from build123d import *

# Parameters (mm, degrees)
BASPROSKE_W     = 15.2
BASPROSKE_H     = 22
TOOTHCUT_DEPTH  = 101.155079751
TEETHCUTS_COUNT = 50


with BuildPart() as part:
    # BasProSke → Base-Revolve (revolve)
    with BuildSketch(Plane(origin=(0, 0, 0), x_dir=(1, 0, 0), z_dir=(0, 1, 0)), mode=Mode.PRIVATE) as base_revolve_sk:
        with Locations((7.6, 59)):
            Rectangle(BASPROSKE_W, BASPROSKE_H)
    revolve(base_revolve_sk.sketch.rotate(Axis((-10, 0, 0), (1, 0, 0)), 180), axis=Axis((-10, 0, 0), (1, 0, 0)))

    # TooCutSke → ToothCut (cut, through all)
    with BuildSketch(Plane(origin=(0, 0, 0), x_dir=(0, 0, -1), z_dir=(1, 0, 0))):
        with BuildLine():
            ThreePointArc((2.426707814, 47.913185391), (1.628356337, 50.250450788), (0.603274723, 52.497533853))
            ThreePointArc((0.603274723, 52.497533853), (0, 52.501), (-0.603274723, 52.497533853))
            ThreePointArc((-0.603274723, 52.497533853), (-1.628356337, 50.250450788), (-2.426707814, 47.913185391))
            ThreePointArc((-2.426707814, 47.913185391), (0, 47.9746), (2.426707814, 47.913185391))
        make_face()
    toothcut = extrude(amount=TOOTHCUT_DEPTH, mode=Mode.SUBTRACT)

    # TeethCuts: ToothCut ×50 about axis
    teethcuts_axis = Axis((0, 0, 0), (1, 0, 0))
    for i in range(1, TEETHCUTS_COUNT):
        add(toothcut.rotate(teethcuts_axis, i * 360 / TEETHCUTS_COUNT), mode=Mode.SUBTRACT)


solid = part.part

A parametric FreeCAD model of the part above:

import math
import FreeCAD as App
import Part
import Sketcher

doc = App.newDocument("Part")
body = doc.addObject("PartDesign::Body", "Body")

sketch1 = doc.addObject("Sketcher::SketchObject", "Sketch")
body.addObject(sketch1)
sketch1.AttachmentSupport = (doc.XZ_Plane, [""])
sketch1.MapMode = "FlatFace"
sketch1.addGeometry(Part.LineSegment(App.Vector(0, -70, 0), App.Vector(0, -48, 0)), False)
sketch1.addGeometry(Part.LineSegment(App.Vector(0, -48, 0), App.Vector(15.2, -48, 0)), False)
sketch1.addGeometry(Part.LineSegment(App.Vector(15.2, -48, 0), App.Vector(15.2, -70, 0)), False)
sketch1.addGeometry(Part.LineSegment(App.Vector(15.2, -70, 0), App.Vector(0, -70, 0)), False)
sketch1.addConstraint(Sketcher.Constraint("Coincident", 0, 2, 1, 1))
sketch1.addConstraint(Sketcher.Constraint("Coincident", 1, 2, 2, 1))
sketch1.addConstraint(Sketcher.Constraint("Coincident", 2, 2, 3, 1))
sketch1.addConstraint(Sketcher.Constraint("Coincident", 3, 2, 0, 1))
sketch1.addConstraint(Sketcher.Constraint("Vertical", 0))
sketch1.addConstraint(Sketcher.Constraint("Horizontal", 1))
sketch1.addConstraint(Sketcher.Constraint("Vertical", 2))
sketch1.addConstraint(Sketcher.Constraint("Horizontal", 3))
sketch1.addConstraint(Sketcher.Constraint("PointOnObject", 0, 2, -2))
sketch1.addConstraint(Sketcher.Constraint("DistanceY", 0, 1, 0, 2, 22.0))
sketch1.addConstraint(Sketcher.Constraint("DistanceX", 1, 1, 1, 2, 15.2))
sketch1.addConstraint(Sketcher.Constraint("DistanceY", 0, 2, -1, 1, 48.0))
revolution = doc.addObject("PartDesign::Revolution", "Revolution")
body.addObject(revolution)
revolution.Profile = sketch1
revolution.ReferenceAxis = (sketch1, ["H_Axis"])
revolution.Angle = 360

sketch2 = doc.addObject("Sketcher::SketchObject", "Sketch001")
body.addObject(sketch2)
sketch2.AttachmentSupport = (doc.YZ_Plane, [""])
sketch2.MapMode = "FlatFace"
sketch2.addGeometry(Part.ArcOfCircle(Part.Circle(App.Vector(41.010722, 21.601526, 0), App.Vector(0, 0, 1), 25), math.radians(-73.97251), math.radians(-62.646928)), False)
sketch2.addGeometry(Part.ArcOfCircle(Part.Circle(App.Vector(-0.000006, 0, 0), App.Vector(0, 0, 1), 52.501006), math.radians(-0.658385), math.radians(0.658385)), False)
sketch2.addGeometry(Part.ArcOfCircle(Part.Circle(App.Vector(41.010722, -21.601526, 0), App.Vector(0, 0, 1), 25), math.radians(62.646928), math.radians(73.97251)), False)
sketch2.addGeometry(Part.ArcOfCircle(Part.Circle(App.Vector(0, 0, 0), App.Vector(0, 0, 1), 47.9746), math.radians(-2.89944), math.radians(2.89944)), False)
sketch2.addConstraint(Sketcher.Constraint("Coincident", 0, 2, 1, 1))
sketch2.addConstraint(Sketcher.Constraint("Coincident", 1, 2, 2, 1))
sketch2.addConstraint(Sketcher.Constraint("Coincident", 2, 2, 3, 2))
sketch2.addConstraint(Sketcher.Constraint("Coincident", 3, 1, 0, 1))
sketch2.addConstraint(Sketcher.Constraint("Coincident", 1, 3, -1, 1))
sketch2.addConstraint(Sketcher.Constraint("Coincident", 3, 3, -1, 1))
sketch2.addConstraint(Sketcher.Constraint("Equal", 0, 2))
sketch2.addConstraint(Sketcher.Constraint("Symmetric", 0, 3, 2, 3, -1))
sketch2.addConstraint(Sketcher.Constraint("Radius", 0, 25.0))
sketch2.addConstraint(Sketcher.Constraint("Radius", 3, 47.9746))
sketch2.addConstraint(Sketcher.Constraint("Radius", 1, 52.501006))
sketch2.addConstraint(Sketcher.Constraint("DistanceY", 0, 2, 0, 3, 22.2048))
sketch2.addConstraint(Sketcher.Constraint("DistanceY", 2, 3, 0, 3, 43.203051))
pocket1 = doc.addObject("PartDesign::Pocket", "Pocket")
body.addObject(pocket1)
pocket1.Profile = sketch2
pocket1.Type = "ThroughAll"
pocket1.Reversed = True
doc.recompute()

polarpattern = doc.addObject("PartDesign::PolarPattern", "PolarPattern")
body.addObject(polarpattern)
polarpattern.Originals = [pocket1]
polarpattern.Axis = (doc.X_Axis, [""])
polarpattern.Angle = 360
polarpattern.Occurrences = 50
body.Tip = polarpattern

doc.recompute()
